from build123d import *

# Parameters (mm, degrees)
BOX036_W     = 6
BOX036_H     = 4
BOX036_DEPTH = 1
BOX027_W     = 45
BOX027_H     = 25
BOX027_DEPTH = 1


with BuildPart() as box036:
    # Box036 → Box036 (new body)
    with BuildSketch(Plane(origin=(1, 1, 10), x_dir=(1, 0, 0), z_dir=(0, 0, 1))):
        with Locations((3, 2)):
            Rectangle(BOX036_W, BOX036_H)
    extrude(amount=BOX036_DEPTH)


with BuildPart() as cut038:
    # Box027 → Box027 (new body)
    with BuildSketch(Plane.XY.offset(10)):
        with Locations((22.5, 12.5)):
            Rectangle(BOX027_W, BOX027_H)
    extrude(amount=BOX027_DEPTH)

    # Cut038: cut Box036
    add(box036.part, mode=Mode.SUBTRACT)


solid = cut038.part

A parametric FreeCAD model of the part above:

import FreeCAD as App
import Part
import Sketcher

V = App.Vector
Q = App.Units.Quantity


def add_polygon(sketch, points):
    """Adds a closed chain of lines whose ends are joined by coincident constraints."""
    first, n = sketch.GeometryCount, len(points)
    for a, b in zip(points, points[1:] + points[:1]):
        sketch.addGeometry(Part.LineSegment(App.Vector(*a, 0), App.Vector(*b, 0)), False)
    for i in range(n):
        sketch.addConstraint(Sketcher.Constraint("Coincident", first + i, 2, first + (i + 1) % n, 1))

doc = App.newDocument("Part")
body = doc.addObject("PartDesign::Body", "Body")

# Sketch on XY plane
sketch1 = body.newObject("Sketcher::SketchObject", "Sketch")
sketch1.AttachmentSupport = (doc.getObject("XY_Plane"), [""])
sketch1.MapMode = "FlatFace"
sketch1.AttachmentOffset = App.Placement(V(0, 0, 10), App.Rotation())
add_polygon(sketch1, [(1, 5), (1, 1), (7, 1), (7, 5)])  # lines 0-3
sketch1.addConstraint(Sketcher.Constraint("Vertical", 0))
sketch1.addConstraint(Sketcher.Constraint("Horizontal", 1))
sketch1.addConstraint(Sketcher.Constraint("Vertical", 2))
sketch1.addConstraint(Sketcher.Constraint("Horizontal", 3))
sketch1.addConstraint(Sketcher.Constraint("DistanceX", 1, 1, 1, 2, Q("6 mm")))
sketch1.addConstraint(Sketcher.Constraint("DistanceY", 0, 2, 0, 1, Q("4 mm")))
sketch1.addConstraint(Sketcher.Constraint("DistanceX", -1, 1, 0, 2, Q("1 mm")))
sketch1.addConstraint(Sketcher.Constraint("DistanceY", -1, 1, 0, 2, Q("1 mm")))
pad1 = body.newObject("PartDesign::Pad", "Pad")
pad1.Profile = sketch1
pad1.Length = 1
body2 = doc.addObject("PartDesign::Body", "Body001")

# Sketch on XY plane
sketch2 = body2.newObject("Sketcher::SketchObject", "Sketch001")
sketch2.AttachmentSupport = (doc.getObject("XY_Plane001"), [""])
sketch2.MapMode = "FlatFace"
sketch2.AttachmentOffset = App.Placement(V(0, 0, 10), App.Rotation())
add_polygon(sketch2, [(0, 25), (0, 0), (45, 0), (45, 25)])  # lines 0-3
sketch2.addConstraint(Sketcher.Constraint("Vertical", 0))
sketch2.addConstraint(Sketcher.Constraint("Horizontal", 1))
sketch2.addConstraint(Sketcher.Constraint("Vertical", 2))
sketch2.addConstraint(Sketcher.Constraint("Horizontal", 3))
sketch2.addConstraint(Sketcher.Constraint("Coincident", 0, 2, -1, 1))
sketch2.addConstraint(Sketcher.Constraint("DistanceX", 1, 1, 1, 2, Q("45 mm")))
sketch2.addConstraint(Sketcher.Constraint("DistanceY", 0, 2, 0, 1, Q("25 mm")))
pad2 = body2.newObject("PartDesign::Pad", "Pad001")
pad2.Profile = sketch2
pad2.Length = 1
doc.recompute()

boolean = body2.newObject("PartDesign::Boolean", "Boolean")
boolean.Type = "Cut"
boolean.addObjects([body])

doc.recompute()
